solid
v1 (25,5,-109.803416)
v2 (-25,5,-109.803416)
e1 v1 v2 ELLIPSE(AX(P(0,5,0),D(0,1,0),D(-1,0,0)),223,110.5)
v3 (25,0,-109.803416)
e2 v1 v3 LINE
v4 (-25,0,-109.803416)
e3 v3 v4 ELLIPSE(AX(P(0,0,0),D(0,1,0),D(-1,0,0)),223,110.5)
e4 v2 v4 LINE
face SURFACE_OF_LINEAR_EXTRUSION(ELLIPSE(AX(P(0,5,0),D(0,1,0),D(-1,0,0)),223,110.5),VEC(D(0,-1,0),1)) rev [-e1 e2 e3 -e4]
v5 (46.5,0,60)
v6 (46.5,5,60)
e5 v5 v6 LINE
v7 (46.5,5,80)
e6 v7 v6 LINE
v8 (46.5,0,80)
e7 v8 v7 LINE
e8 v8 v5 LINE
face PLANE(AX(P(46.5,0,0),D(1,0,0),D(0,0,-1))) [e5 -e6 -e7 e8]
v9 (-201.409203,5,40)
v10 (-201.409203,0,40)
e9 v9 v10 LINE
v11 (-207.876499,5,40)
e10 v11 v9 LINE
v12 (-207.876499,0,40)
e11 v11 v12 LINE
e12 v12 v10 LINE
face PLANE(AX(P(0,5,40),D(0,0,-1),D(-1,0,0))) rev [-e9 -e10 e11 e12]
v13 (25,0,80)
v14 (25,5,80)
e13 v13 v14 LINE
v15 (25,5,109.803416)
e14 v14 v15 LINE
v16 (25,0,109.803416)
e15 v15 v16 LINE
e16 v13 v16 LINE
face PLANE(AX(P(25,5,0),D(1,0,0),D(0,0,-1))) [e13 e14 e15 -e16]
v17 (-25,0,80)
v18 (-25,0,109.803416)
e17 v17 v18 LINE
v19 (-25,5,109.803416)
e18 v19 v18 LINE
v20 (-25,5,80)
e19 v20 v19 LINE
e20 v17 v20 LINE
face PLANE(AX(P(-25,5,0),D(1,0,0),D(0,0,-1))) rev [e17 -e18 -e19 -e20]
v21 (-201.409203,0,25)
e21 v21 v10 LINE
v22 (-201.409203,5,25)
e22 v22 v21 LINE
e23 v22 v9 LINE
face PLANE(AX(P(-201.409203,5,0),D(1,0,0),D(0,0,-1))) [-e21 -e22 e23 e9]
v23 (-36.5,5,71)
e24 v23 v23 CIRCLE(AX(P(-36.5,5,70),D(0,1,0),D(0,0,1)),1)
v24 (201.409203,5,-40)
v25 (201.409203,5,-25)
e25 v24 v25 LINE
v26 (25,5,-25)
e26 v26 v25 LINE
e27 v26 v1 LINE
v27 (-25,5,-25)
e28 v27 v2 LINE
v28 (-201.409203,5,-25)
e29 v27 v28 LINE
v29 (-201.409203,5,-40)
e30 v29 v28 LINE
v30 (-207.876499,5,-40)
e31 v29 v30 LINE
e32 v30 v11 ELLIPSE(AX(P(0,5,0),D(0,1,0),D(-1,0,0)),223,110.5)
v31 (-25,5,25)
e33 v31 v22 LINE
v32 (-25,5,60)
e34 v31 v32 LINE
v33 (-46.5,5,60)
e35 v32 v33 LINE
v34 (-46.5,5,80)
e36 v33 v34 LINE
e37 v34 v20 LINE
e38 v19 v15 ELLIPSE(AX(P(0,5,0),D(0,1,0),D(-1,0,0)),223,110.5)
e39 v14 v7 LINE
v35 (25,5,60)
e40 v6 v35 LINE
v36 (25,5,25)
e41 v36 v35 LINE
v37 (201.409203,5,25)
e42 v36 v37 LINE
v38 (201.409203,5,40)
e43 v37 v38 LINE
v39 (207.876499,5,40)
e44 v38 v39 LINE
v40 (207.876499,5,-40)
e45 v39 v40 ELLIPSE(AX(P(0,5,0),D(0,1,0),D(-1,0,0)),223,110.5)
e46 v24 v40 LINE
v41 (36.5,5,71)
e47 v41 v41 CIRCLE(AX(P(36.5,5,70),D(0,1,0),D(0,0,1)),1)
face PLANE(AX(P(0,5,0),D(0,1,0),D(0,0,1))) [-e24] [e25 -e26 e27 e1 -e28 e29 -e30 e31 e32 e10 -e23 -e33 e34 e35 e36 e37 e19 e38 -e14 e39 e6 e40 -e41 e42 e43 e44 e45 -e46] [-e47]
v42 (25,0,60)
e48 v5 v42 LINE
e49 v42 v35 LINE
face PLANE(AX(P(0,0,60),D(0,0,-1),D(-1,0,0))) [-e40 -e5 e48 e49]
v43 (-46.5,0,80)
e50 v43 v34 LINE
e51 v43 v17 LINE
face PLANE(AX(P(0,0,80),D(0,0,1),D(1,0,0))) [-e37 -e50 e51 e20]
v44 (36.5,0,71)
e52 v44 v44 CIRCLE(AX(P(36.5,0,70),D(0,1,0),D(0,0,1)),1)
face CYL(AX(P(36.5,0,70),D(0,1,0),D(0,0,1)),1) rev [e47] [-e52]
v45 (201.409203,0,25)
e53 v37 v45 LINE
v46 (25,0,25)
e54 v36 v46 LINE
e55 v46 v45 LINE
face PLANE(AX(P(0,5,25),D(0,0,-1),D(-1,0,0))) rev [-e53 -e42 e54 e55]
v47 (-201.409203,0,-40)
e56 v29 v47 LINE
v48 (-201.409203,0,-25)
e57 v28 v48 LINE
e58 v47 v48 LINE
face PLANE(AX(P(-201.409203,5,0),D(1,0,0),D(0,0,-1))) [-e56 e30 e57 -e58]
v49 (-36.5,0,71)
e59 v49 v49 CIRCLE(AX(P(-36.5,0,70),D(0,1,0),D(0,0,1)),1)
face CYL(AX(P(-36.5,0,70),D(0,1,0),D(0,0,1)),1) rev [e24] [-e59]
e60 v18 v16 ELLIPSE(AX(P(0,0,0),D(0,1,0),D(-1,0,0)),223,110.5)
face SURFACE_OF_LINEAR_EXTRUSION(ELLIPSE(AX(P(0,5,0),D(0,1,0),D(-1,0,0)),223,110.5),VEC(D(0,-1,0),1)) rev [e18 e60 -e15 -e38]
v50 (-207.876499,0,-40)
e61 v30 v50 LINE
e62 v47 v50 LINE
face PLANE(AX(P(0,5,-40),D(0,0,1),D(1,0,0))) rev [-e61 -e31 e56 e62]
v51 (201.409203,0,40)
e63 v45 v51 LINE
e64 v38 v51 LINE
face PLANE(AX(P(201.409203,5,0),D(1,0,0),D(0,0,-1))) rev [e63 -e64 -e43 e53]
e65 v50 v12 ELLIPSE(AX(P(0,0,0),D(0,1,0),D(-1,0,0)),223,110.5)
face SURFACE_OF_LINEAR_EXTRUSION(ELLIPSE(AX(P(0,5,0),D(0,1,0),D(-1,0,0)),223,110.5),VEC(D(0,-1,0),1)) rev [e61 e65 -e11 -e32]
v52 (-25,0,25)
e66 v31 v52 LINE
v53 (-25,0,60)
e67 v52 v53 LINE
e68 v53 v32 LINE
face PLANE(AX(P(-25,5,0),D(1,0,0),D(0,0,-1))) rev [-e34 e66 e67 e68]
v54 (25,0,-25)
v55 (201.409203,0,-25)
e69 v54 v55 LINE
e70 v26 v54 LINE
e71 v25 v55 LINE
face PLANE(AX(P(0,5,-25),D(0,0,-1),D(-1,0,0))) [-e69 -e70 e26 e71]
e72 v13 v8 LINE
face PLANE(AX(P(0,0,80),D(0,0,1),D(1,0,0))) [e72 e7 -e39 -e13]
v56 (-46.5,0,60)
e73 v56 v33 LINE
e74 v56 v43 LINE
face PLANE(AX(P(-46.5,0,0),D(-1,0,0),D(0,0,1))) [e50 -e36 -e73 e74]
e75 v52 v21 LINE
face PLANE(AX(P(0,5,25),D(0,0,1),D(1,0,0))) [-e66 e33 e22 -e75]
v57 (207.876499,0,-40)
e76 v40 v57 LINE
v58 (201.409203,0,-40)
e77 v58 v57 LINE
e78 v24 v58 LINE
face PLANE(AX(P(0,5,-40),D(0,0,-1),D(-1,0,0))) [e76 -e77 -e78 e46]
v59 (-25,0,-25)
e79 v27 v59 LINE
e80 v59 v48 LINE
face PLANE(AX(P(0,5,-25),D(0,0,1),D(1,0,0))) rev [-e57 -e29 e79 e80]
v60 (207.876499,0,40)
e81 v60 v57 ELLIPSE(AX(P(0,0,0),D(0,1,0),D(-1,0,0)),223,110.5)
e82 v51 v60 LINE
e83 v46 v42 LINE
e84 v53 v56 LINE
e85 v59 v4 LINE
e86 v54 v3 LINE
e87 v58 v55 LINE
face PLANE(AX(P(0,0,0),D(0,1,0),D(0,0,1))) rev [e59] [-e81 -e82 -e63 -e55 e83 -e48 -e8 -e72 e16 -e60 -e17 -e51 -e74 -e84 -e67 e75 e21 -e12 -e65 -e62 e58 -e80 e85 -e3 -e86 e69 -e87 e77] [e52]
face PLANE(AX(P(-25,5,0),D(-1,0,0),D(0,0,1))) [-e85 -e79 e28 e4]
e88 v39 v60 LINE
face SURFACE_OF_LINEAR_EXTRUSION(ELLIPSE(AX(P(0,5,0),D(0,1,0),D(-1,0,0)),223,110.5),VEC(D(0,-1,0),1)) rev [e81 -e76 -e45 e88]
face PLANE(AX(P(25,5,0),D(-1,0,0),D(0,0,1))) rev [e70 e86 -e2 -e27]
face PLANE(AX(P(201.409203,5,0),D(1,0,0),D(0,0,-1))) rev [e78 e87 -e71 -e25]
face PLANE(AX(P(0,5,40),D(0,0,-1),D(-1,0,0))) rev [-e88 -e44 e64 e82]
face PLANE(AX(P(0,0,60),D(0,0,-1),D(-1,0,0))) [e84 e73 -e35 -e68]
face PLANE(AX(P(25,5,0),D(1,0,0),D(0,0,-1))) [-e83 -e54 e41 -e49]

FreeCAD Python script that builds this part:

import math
import FreeCAD as App
import Part
import Sketcher
from FreeCAD import Vector

doc = App.newDocument("Part")
body = doc.addObject("PartDesign::Body", "Body")

# Sketch on XZ plane
sketch1 = doc.addObject("Sketcher::SketchObject", "Sketch")
body.addObject(sketch1)
sketch1.AttachmentSupport = (doc.XZ_Plane, [""])
sketch1.MapMode = "FlatFace"
sketch1.addGeometry(Part.LineSegment(Vector(201.409203, -25, 0), Vector(25, -25, 0)), False)
sketch1.addGeometry(Part.LineSegment(Vector(25, -25, 0), Vector(25, -109.803416, 0)), False)
sketch1.addGeometry(Part.BSplineCurve([Vector(25, -109.803416, 0), Vector(0, -111.201003, 0), Vector(-25, -109.803416, 0)], [3, 3], [4.600045189, 4.824732772], False, 2, [1, 0.993696071, 1], False), False)
sketch1.addGeometry(Part.LineSegment(Vector(-25, -109.803416, 0), Vector(-25, -25, 0)), False)
sketch1.addGeometry(Part.LineSegment(Vector(-25, -25, 0), Vector(-201.409203, -25, 0)), False)
sketch1.addGeometry(Part.LineSegment(Vector(-201.409203, -25, 0), Vector(-201.409203, -40, 0)), False)
sketch1.addGeometry(Part.LineSegment(Vector(-201.409203, -40, 0), Vector(-207.876499, -40, 0)), False)
sketch1.addGeometry(Part.BSplineCurve([Vector(-207.876499, -40, 0), Vector(-239.223771, 0, 0), Vector(-207.876499, 40, 0)], [3, 3], [5.912782501, 6.653588114], False, 2, [1, 0.932181609, 1], False), False)
sketch1.addGeometry(Part.LineSegment(Vector(-207.876499, 40, 0), Vector(-201.409203, 40, 0)), False)
sketch1.addGeometry(Part.LineSegment(Vector(-201.409203, 40, 0), Vector(-201.409203, 25, 0)), False)
sketch1.addGeometry(Part.LineSegment(Vector(-201.409203, 25, 0), Vector(-25, 25, 0)), False)
sketch1.addGeometry(Part.LineSegment(Vector(-25, 25, 0), Vector(-25, 109.803416, 0)), False)
sketch1.addGeometry(Part.BSplineCurve([Vector(-25, 109.803416, 0), Vector(0, 111.201003, 0), Vector(25, 109.803416, 0)], [3, 3], [1.458452535, 1.683140119], False, 2, [1, 0.993696071, 1], False), False)
sketch1.addGeometry(Part.LineSegment(Vector(25, 109.803416, 0), Vector(25, 25, 0)), False)
sketch1.addGeometry(Part.LineSegment(Vector(25, 25, 0), Vector(201.409203, 25, 0)), False)
sketch1.addGeometry(Part.LineSegment(Vector(201.409203, 25, 0), Vector(201.409203, 40, 0)), False)
sketch1.addGeometry(Part.LineSegment(Vector(201.409203, 40, 0), Vector(207.876499, 40, 0)), False)
sketch1.addGeometry(Part.BSplineCurve([Vector(207.876499, 40, 0), Vector(239.223771, 0, 0), Vector(207.876499, -40, 0)], [3, 3], [2.771189847, 3.51199546], False, 2, [1, 0.932181609, 1], False), False)
sketch1.addGeometry(Part.LineSegment(Vector(207.876499, -40, 0), Vector(201.409203, -40, 0)), False)
sketch1.addGeometry(Part.LineSegment(Vector(201.409203, -40, 0), Vector(201.409203, -25, 0)), False)
sketch1.addConstraint(Sketcher.Constraint("Block", 2))
sketch1.addConstraint(Sketcher.Constraint("Block", 7))
sketch1.addConstraint(Sketcher.Constraint("Block", 12))
sketch1.addConstraint(Sketcher.Constraint("Block", 17))
sketch1.addConstraint(Sketcher.Constraint("Coincident", 0, 2, 1, 1))
sketch1.addConstraint(Sketcher.Constraint("Coincident", 1, 2, 2, 1))
sketch1.addConstraint(Sketcher.Constraint("Coincident", 2, 2, 3, 1))
sketch1.addConstraint(Sketcher.Constraint("Coincident", 3, 2, 4, 1))
sketch1.addConstraint(Sketcher.Constraint("Coincident", 4, 2, 5, 1))
sketch1.addConstraint(Sketcher.Constraint("Coincident", 5, 2, 6, 1))
sketch1.addConstraint(Sketcher.Constraint("Coincident", 6, 2, 7, 1))
sketch1.addConstraint(Sketcher.Constraint("Coincident", 7, 2, 8, 1))
sketch1.addConstraint(Sketcher.Constraint("Coincident", 8, 2, 9, 1))
sketch1.addConstraint(Sketcher.Constraint("Coincident", 9, 2, 10, 1))
sketch1.addConstraint(Sketcher.Constraint("Coincident", 10, 2, 11, 1))
sketch1.addConstraint(Sketcher.Constraint("Coincident", 11, 2, 12, 1))
sketch1.addConstraint(Sketcher.Constraint("Coincident", 12, 2, 13, 1))
sketch1.addConstraint(Sketcher.Constraint("Coincident", 13, 2, 14, 1))
sketch1.addConstraint(Sketcher.Constraint("Coincident", 14, 2, 15, 1))
sketch1.addConstraint(Sketcher.Constraint("Coincident", 15, 2, 16, 1))
sketch1.addConstraint(Sketcher.Constraint("Coincident", 16, 2, 17, 1))
sketch1.addConstraint(Sketcher.Constraint("Coincident", 17, 2, 18, 1))
sketch1.addConstraint(Sketcher.Constraint("Coincident", 18, 2, 19, 1))
sketch1.addConstraint(Sketcher.Constraint("Coincident", 19, 2, 0, 1))
sketch1.addConstraint(Sketcher.Constraint("Horizontal", 0))
sketch1.addConstraint(Sketcher.Constraint("Vertical", 1))
sketch1.addConstraint(Sketcher.Constraint("Vertical", 3))
sketch1.addConstraint(Sketcher.Constraint("Horizontal", 4))
sketch1.addConstraint(Sketcher.Constraint("Vertical", 5))
sketch1.addConstraint(Sketcher.Constraint("Horizontal", 6))
sketch1.addConstraint(Sketcher.Constraint("Horizontal", 8))
sketch1.addConstraint(Sketcher.Constraint("Vertical", 9))
sketch1.addConstraint(Sketcher.Constraint("Horizontal", 10))
sketch1.addConstraint(Sketcher.Constraint("Vertical", 11))
sketch1.addConstraint(Sketcher.Constraint("Vertical", 13))
sketch1.addConstraint(Sketcher.Constraint("Horizontal", 14))
sketch1.addConstraint(Sketcher.Constraint("Vertical", 15))
sketch1.addConstraint(Sketcher.Constraint("Horizontal", 16))
sketch1.addConstraint(Sketcher.Constraint("Horizontal", 18))
sketch1.addConstraint(Sketcher.Constraint("Vertical", 19))
sketch1.addConstraint(Sketcher.Constraint("Symmetric", 4, 2, 14, 2, -1, 1))
sketch1.addConstraint(Sketcher.Constraint("Symmetric", 9, 2, 19, 2, -1, 1))
sketch1.addConstraint(Sketcher.Constraint("Symmetric", 9, 2, 14, 2, -2))
sketch1.addConstraint(Sketcher.Constraint("DistanceY", 5, 2, 5, 1, 15.0))
sketch1.addConstraint(Sketcher.Constraint("DistanceX", 0, 2, 0, 1, 176.409203))
pad1 = doc.addObject("PartDesign::Pad", "Pad")
body.addObject(pad1)
pad1.Profile = sketch1
pad1.Length = 5
pad1.Reversed = True

# Sketch on XZ plane
sketch2 = doc.addObject("Sketcher::SketchObject", "Sketch001")
body.addObject(sketch2)
sketch2.AttachmentSupport = (doc.XZ_Plane, [""])
sketch2.MapMode = "FlatFace"
sketch2.AttachmentOffset = App.Placement(Vector(0, 0, -5), App.Rotation())
sketch2.addGeometry(Part.LineSegment(Vector(-25, 60, 0), Vector(-46.5, 60, 0)), False)
sketch2.addGeometry(Part.LineSegment(Vector(-46.5, 60, 0), Vector(-46.5, 80, 0)), False)
sketch2.addGeometry(Part.LineSegment(Vector(-46.5, 80, 0), Vector(-25, 80, 0)), False)
sketch2.addGeometry(Part.LineSegment(Vector(-25, 80, 0), Vector(-25, 60, 0)), False)
sketch2.addGeometry(Part.ArcOfCircle(Part.Circle(Vector(-36.5, 70, 0), Vector(0, 0, 1), 1), math.radians(-90), math.radians(0)), False)
sketch2.addGeometry(Part.ArcOfCircle(Part.Circle(Vector(-36.5, 70, 0), Vector(0, 0, 1), 1), math.radians(0), math.radians(270)), False)
sketch2.addGeometry(Part.LineSegment(Vector(25, 60, 0), Vector(25, 80, 0)), False)
sketch2.addGeometry(Part.LineSegment(Vector(25, 80, 0), Vector(46.5, 80, 0)), False)
sketch2.addGeometry(Part.LineSegment(Vector(46.5, 80, 0), Vector(46.5, 60, 0)), False)
sketch2.addGeometry(Part.LineSegment(Vector(46.5, 60, 0), Vector(25, 60, 0)), False)
sketch2.addGeometry(Part.Circle(Vector(36.5, 70, 0), Vector(0, 0, 1), 1), False)
sketch2.addConstraint(Sketcher.Constraint("Coincident", 0, 2, 1, 1))
sketch2.addConstraint(Sketcher.Constraint("Coincident", 1, 2, 2, 1))
sketch2.addConstraint(Sketcher.Constraint("Coincident", 2, 2, 3, 1))
sketch2.addConstraint(Sketcher.Constraint("Coincident", 3, 2, 0, 1))
sketch2.addConstraint(Sketcher.Constraint("Tangent", 4, 1, 5, 2))
sketch2.addConstraint(Sketcher.Constraint("Coincident", 5, 1, 4, 2))
sketch2.addConstraint(Sketcher.Constraint("Coincident", 6, 2, 7, 1))
sketch2.addConstraint(Sketcher.Constraint("Coincident", 7, 2, 8, 1))
sketch2.addConstraint(Sketcher.Constraint("Coincident", 8, 2, 9, 1))
sketch2.addConstraint(Sketcher.Constraint("Coincident", 9, 2, 6, 1))
sketch2.addConstraint(Sketcher.Constraint("Horizontal", 0))
sketch2.addConstraint(Sketcher.Constraint("Vertical", 1))
sketch2.addConstraint(Sketcher.Constraint("Horizontal", 2))
sketch2.addConstraint(Sketcher.Constraint("Vertical", 3))
sketch2.addConstraint(Sketcher.Constraint("Vertical", 6))
sketch2.addConstraint(Sketcher.Constraint("Horizontal", 7))
sketch2.addConstraint(Sketcher.Constraint("Vertical", 8))
sketch2.addConstraint(Sketcher.Constraint("Horizontal", 9))
sketch2.addConstraint(Sketcher.Constraint("Equal", 5, 10))
sketch2.addConstraint(Sketcher.Constraint("Symmetric", 4, 3, 10, 3, -2))
sketch2.addConstraint(Sketcher.Constraint("Symmetric", 2, 2, 6, 2, -2))
sketch2.addConstraint(Sketcher.Constraint("Symmetric", 0, 2, 8, 2, -2))
sketch2.addConstraint(Sketcher.Constraint("Horizontal", 10, 3, 5, 1))
sketch2.addConstraint(Sketcher.Constraint("Vertical", 5, 3, 4, 1))
sketch2.addConstraint(Sketcher.Constraint("Diameter", 10, 2.0))
sketch2.addConstraint(Sketcher.Constraint("DistanceY", 1, 1, 1, 2, 20.0))
sketch2.addConstraint(Sketcher.Constraint("DistanceX", 0, 2, 0, 1, 21.5))
sketch2.addConstraint(Sketcher.Constraint("DistanceY", -1, 1, 4, 3, 70.0))
sketch2.addConstraint(Sketcher.Constraint("DistanceY", -1, 1, 0, 2, 60.0))
sketch2.addConstraint(Sketcher.Constraint("DistanceX", 2, 2, -1, 1, 25.0))
sketch2.addConstraint(Sketcher.Constraint("DistanceX", 5, 3, 10, 3, 73.0))
pad2 = doc.addObject("PartDesign::Pad", "Pad001")
body.addObject(pad2)
pad2.Profile = sketch2
pad2.Length = 5

doc.recompute()
